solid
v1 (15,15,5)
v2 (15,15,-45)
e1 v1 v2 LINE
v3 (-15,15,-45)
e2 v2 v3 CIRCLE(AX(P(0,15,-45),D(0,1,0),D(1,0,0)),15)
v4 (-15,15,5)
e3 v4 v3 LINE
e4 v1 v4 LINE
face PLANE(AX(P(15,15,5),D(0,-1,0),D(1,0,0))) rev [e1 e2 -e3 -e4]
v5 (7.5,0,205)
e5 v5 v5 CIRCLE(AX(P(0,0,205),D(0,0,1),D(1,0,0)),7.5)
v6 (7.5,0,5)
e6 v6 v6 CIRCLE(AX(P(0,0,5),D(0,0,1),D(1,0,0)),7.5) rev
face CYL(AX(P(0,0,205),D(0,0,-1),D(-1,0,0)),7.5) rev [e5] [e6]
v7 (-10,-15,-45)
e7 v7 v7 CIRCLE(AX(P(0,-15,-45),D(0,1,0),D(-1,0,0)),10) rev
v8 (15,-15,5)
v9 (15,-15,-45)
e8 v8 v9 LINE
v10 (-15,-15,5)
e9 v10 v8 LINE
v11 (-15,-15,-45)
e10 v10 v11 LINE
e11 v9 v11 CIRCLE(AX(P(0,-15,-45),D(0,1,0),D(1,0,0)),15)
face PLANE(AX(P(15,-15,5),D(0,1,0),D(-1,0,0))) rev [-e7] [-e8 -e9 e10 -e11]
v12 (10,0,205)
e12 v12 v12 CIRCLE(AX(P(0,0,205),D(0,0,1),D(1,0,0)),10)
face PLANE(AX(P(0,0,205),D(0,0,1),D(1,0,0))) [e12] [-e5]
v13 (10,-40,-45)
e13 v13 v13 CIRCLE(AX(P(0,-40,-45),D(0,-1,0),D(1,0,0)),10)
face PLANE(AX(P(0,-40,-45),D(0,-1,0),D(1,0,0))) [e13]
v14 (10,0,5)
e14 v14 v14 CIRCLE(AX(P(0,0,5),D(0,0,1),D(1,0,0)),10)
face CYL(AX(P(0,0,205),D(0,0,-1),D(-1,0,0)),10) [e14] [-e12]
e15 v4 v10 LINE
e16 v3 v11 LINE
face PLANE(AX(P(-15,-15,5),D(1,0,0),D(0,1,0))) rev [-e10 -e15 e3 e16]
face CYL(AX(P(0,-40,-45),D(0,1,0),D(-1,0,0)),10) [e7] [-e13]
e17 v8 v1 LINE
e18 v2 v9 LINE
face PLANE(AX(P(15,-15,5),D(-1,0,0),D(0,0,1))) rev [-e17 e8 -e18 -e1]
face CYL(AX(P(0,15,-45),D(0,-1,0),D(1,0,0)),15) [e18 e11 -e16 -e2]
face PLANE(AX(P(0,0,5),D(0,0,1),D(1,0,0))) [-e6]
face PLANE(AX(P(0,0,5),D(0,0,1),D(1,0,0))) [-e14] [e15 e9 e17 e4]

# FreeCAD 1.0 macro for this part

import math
import FreeCAD as App
import Part
import Sketcher
Q = App.Units.Quantity

doc = App.newDocument("Part")
body = doc.addObject("PartDesign::Body", "Body")

# Sketch on XY plane
sketch1 = body.newObject("Sketcher::SketchObject", "Sketch")
sketch1.AttachmentSupport = (doc.getObject("XY_Plane"), [""])
sketch1.MapMode = "FlatFace"
sketch1.addGeometry([
    Part.LineSegment(App.Vector(-15, 15, 0), App.Vector(-15, -15, 0)),
    Part.LineSegment(App.Vector(-15, -15, 0), App.Vector(15, -15, 0)),
    Part.LineSegment(App.Vector(15, -15, 0), App.Vector(15, 15, 0)),
    Part.LineSegment(App.Vector(15, 15, 0), App.Vector(-15, 15, 0)),
], False)
sketch1.addConstraint([
    Sketcher.Constraint("Coincident", 0, 2, 1, 1),
    Sketcher.Constraint("Coincident", 1, 2, 2, 1),
    Sketcher.Constraint("Coincident", 2, 2, 3, 1),
    Sketcher.Constraint("Coincident", 3, 2, 0, 1),
    Sketcher.Constraint("Vertical", 0),
    Sketcher.Constraint("Horizontal", 1),
    Sketcher.Constraint("Vertical", 2),
    Sketcher.Constraint("Horizontal", 3),
    Sketcher.Constraint("Symmetric", 0, 2, 2, 2, -1, 1),
    Sketcher.Constraint("Equal", 3, 0),
    Sketcher.Constraint("DistanceX", 1, 1, 1, 2, Q("30 mm")),
])
pad1 = body.newObject("PartDesign::Pad", "Pad")
pad1.Profile = sketch1
pad1.Length = 5

# Sketch on XY plane
sketch2 = body.newObject("Sketcher::SketchObject", "Sketch001")
sketch2.AttachmentSupport = (doc.getObject("XY_Plane"), [""])
sketch2.MapMode = "FlatFace"
sketch2.AttachmentOffset = App.Placement(App.Vector(0, 0, 5), App.Rotation())
sketch2.addGeometry([
    Part.Circle(App.Vector(0, 0, 0), App.Vector(0, 0, 1), 10),
    Part.Circle(App.Vector(0, 0, 0), App.Vector(0, 0, 1), 8),
], False)
sketch2.addConstraint([
    Sketcher.Constraint("Coincident", 0, 3, -1, 1),
    Sketcher.Constraint("Coincident", 1, 3, -1, 1),
    Sketcher.Constraint("Diameter", 0, Q("20 mm")),
    Sketcher.Constraint("Diameter", 1, Q("15 mm")),
])
pad2 = body.newObject("PartDesign::Pad", "Pad001")
pad2.Profile = sketch2
pad2.Length = 200

# Sketch on XY plane
sketch3 = body.newObject("Sketcher::SketchObject", "Sketch002")
sketch3.AttachmentSupport = (doc.getObject("XY_Plane"), [""])
sketch3.MapMode = "FlatFace"
sketch3.addGeometry([
    Part.LineSegment(App.Vector(15, 15, 0), App.Vector(15, -15, 0)),
    Part.LineSegment(App.Vector(15, -15, 0), App.Vector(-15, -15, 0)),
    Part.LineSegment(App.Vector(-15, -15, 0), App.Vector(-15, 15, 0)),
    Part.LineSegment(App.Vector(-15, 15, 0), App.Vector(15, 15, 0)),
], False)
sketch3.addConstraint([
    Sketcher.Constraint("Coincident", 0, 2, 1, 1),
    Sketcher.Constraint("Coincident", 1, 2, 2, 1),
    Sketcher.Constraint("Coincident", 2, 2, 3, 1),
    Sketcher.Constraint("Coincident", 3, 2, 0, 1),
    Sketcher.Constraint("Vertical", 0),
    Sketcher.Constraint("Horizontal", 1),
    Sketcher.Constraint("Vertical", 2),
    Sketcher.Constraint("Horizontal", 3),
    Sketcher.Constraint("Symmetric", 0, 2, 2, 2, -1, 1),
    Sketcher.Constraint("Equal", 3, 0),
    Sketcher.Constraint("DistanceX", 1, 2, 1, 1, Q("30 mm")),
])
pad3 = body.newObject("PartDesign::Pad", "Pad002")
pad3.Profile = sketch3
pad3.Length = 60
pad3.Reversed = True

# Sketch on XZ plane
sketch4 = body.newObject("Sketcher::SketchObject", "Sketch003")
sketch4.AttachmentSupport = (doc.getObject("XZ_Plane"), [""])
sketch4.MapMode = "FlatFace"
sketch4.AttachmentOffset = App.Placement(App.Vector(0, 0, 15), App.Rotation())
sketch4.addGeometry(Part.Circle(App.Vector(0, -45, 0), App.Vector(0, 0, 1), 10), False)
sketch4.addConstraint([
    Sketcher.Constraint("PointOnObject", 0, 3, -2),
    Sketcher.Constraint("Diameter", 0, Q("20 mm")),
    Sketcher.Constraint("DistanceY", 0, 3, -1, 1, Q("45 mm")),
])
pad4 = body.newObject("PartDesign::Pad", "Pad003")
pad4.Profile = sketch4
pad4.Length = 25

# Sketch on XZ plane
sketch5 = body.newObject("Sketcher::SketchObject", "Sketch004")
sketch5.AttachmentSupport = (doc.getObject("XZ_Plane"), [""])
sketch5.MapMode = "FlatFace"
sketch5.AttachmentOffset = App.Placement(App.Vector(0, 0, 15), App.Rotation())
sketch5.addGeometry([
    Part.LineSegment(App.Vector(15, -77, 0), App.Vector(15, -45, 0)),
    Part.ArcOfCircle(Part.Circle(App.Vector(0, -45, 0), App.Vector(0, 0, 1), 15), math.radians(180), math.radians(360)),
    Part.LineSegment(App.Vector(-15, -45, 0), App.Vector(-15, -77, 0)),
    Part.LineSegment(App.Vector(-15, -77, 0), App.Vector(15, -77, 0)),
], False)
sketch5.addConstraint([
    Sketcher.Constraint("Tangent", 0, 2, 1, 2),
    Sketcher.Constraint("Tangent", 1, 1, 2, 1),
    Sketcher.Constraint("Coincident", 2, 2, 3, 1),
    Sketcher.Constraint("Coincident", 3, 2, 0, 1),
    Sketcher.Constraint("Vertical", 0),
    Sketcher.Constraint("Vertical", 2),
    Sketcher.Constraint("Horizontal", 3),
    Sketcher.Constraint("PointOnObject", 1, 3, -2),
    Sketcher.Constraint("Radius", 1, Q("15 mm")),
    Sketcher.Constraint("DistanceY", 1, 3, -1, 1, Q("45 mm")),
    Sketcher.Constraint("DistanceY", 0, 1, 0, 2, Q("31.870462 mm")),
])
pocket1 = body.newObject("PartDesign::Pocket", "Pocket")
pocket1.Profile = sketch5
pocket1.Type = "ThroughAll"

doc.recompute()
